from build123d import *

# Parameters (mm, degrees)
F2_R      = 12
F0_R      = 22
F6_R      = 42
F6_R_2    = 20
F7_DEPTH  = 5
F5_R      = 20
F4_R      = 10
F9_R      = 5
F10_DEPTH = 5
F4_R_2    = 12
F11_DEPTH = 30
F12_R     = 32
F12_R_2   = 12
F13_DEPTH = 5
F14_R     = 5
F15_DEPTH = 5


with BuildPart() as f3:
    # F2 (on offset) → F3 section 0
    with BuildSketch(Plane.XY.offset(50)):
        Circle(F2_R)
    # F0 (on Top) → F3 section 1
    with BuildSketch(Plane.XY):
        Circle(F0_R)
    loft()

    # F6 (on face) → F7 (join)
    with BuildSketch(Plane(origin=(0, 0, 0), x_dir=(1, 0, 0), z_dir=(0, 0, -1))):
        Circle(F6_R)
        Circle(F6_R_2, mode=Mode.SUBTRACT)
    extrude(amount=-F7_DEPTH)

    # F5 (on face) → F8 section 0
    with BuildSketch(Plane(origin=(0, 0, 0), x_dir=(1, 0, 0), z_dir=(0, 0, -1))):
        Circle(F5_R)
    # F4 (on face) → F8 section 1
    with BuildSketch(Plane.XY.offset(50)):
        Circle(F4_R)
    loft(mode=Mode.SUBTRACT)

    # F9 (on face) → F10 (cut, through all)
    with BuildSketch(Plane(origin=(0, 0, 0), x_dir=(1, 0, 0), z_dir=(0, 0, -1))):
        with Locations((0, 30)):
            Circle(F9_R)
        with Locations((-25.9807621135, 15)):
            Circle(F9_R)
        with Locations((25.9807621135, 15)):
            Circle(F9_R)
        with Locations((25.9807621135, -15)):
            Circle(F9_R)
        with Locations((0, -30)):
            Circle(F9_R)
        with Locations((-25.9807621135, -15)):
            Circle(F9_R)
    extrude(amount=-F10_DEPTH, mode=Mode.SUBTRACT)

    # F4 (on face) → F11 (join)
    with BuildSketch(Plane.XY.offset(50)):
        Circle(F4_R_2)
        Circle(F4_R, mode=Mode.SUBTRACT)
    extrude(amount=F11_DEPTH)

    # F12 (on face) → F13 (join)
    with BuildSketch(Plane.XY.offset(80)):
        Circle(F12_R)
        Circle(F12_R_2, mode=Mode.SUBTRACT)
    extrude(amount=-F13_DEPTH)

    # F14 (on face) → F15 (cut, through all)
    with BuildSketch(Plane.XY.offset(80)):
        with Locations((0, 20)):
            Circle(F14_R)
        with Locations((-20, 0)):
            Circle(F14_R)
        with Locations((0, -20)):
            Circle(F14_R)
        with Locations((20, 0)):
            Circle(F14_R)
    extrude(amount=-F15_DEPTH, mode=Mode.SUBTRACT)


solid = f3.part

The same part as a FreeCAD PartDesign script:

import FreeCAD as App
import Part
import Sketcher

V = App.Vector
Q = App.Units.Quantity

doc = App.newDocument("Part")
body = doc.addObject("PartDesign::Body", "Body")

# Sketch on XY plane
sketch1 = body.newObject("Sketcher::SketchObject", "Sketch")
sketch1.AttachmentSupport = (doc.getObject("XY_Plane"), [""])
sketch1.MapMode = "FlatFace"
sketch1.AttachmentOffset = App.Placement(V(0, 0, 50), App.Rotation())
sketch1.addGeometry(Part.Circle(V(0, 0, 0), V(0, 0, 1), 12), False)
sketch1.addConstraint(Sketcher.Constraint("Coincident", 0, 3, -1, 1))
sketch1.addConstraint(Sketcher.Constraint("Diameter", 0, Q("24 mm")))

# Sketch on XY plane
sketch2 = body.newObject("Sketcher::SketchObject", "Sketch001")
sketch2.AttachmentSupport = (doc.getObject("XY_Plane"), [""])
sketch2.MapMode = "FlatFace"
sketch2.addGeometry(Part.Circle(V(0, 0, 0), V(0, 0, 1), 22), False)
sketch2.addConstraint(Sketcher.Constraint("Coincident", 0, 3, -1, 1))
sketch2.addConstraint(Sketcher.Constraint("Diameter", 0, Q("44 mm")))

additiveloft = body.newObject("PartDesign::AdditiveLoft", "AdditiveLoft")
additiveloft.Profile = sketch1
additiveloft.Sections = [sketch2]

# Sketch on XY plane
sketch3 = body.newObject("Sketcher::SketchObject", "Sketch002")
sketch3.AttachmentSupport = (doc.getObject("XY_Plane"), [""])
sketch3.MapMode = "FlatFace"
sketch3.addGeometry(Part.Circle(V(0, 0, 0), V(0, 0, 1), 42), False)
sketch3.addGeometry(Part.Circle(V(0, 0, 0), V(0, 0, 1), 20), False)
sketch3.addConstraint(Sketcher.Constraint("Coincident", 0, 3, -1, 1))
sketch3.addConstraint(Sketcher.Constraint("Coincident", 1, 3, -1, 1))
sketch3.addConstraint(Sketcher.Constraint("Diameter", 0, Q("84 mm")))
sketch3.addConstraint(Sketcher.Constraint("Diameter", 1, Q("40 mm")))
pad1 = body.newObject("PartDesign::Pad", "Pad")
pad1.Profile = sketch3
pad1.Length = 5

# Sketch on XY plane
sketch4 = body.newObject("Sketcher::SketchObject", "Sketch003")
sketch4.AttachmentSupport = (doc.getObject("XY_Plane"), [""])
sketch4.MapMode = "FlatFace"
sketch4.addGeometry(Part.Circle(V(0, 0, 0), V(0, 0, 1), 20), False)
sketch4.addConstraint(Sketcher.Constraint("Coincident", 0, 3, -1, 1))
sketch4.addConstraint(Sketcher.Constraint("Diameter", 0, Q("40 mm")))

# Sketch on XY plane
sketch5 = body.newObject("Sketcher::SketchObject", "Sketch004")
sketch5.AttachmentSupport = (doc.getObject("XY_Plane"), [""])
sketch5.MapMode = "FlatFace"
sketch5.AttachmentOffset = App.Placement(V(0, 0, 50), App.Rotation())
sketch5.addGeometry(Part.Circle(V(0, 0, 0), V(0, 0, 1), 10), False)
sketch5.addConstraint(Sketcher.Constraint("Coincident", 0, 3, -1, 1))
sketch5.addConstraint(Sketcher.Constraint("Diameter", 0, Q("20 mm")))

subtractiveloft = body.newObject("PartDesign::SubtractiveLoft", "SubtractiveLoft")
subtractiveloft.Profile = sketch4
subtractiveloft.Sections = [sketch5]

# Sketch on XY plane
sketch6 = body.newObject("Sketcher::SketchObject", "Sketch005")
sketch6.AttachmentSupport = (doc.getObject("XY_Plane"), [""])
sketch6.MapMode = "FlatFace"
sketch6.addGeometry(Part.Circle(V(0, -30, 0), V(0, 0, 1), 5), False)
sketch6.addGeometry(Part.Circle(V(-26, -15, 0), V(0, 0, 1), 5), False)
sketch6.addGeometry(Part.Circle(V(26, -15, 0), V(0, 0, 1), 5), False)
sketch6.addGeometry(Part.Circle(V(26, 15, 0), V(0, 0, 1), 5), False)
sketch6.addGeometry(Part.Circle(V(0, 30, 0), V(0, 0, 1), 5), False)
sketch6.addGeometry(Part.Circle(V(-26, 15, 0), V(0, 0, 1), 5), False)
sketch6.addConstraint(Sketcher.Constraint("Equal", 0, 1))
sketch6.addConstraint(Sketcher.Constraint("Equal", 1, 2))
sketch6.addConstraint(Sketcher.Constraint("Equal", 2, 3))
sketch6.addConstraint(Sketcher.Constraint("Equal", 3, 4))
sketch6.addConstraint(Sketcher.Constraint("Equal", 4, 5))
sketch6.addConstraint(Sketcher.Constraint("Symmetric", 1, 3, 3, 3, -1, 1))
sketch6.addConstraint(Sketcher.Constraint("Symmetric", 0, 3, 4, 3, -1, 1))
sketch6.addConstraint(Sketcher.Constraint("Symmetric", 2, 3, 5, 3, -1, 1))
sketch6.addConstraint(Sketcher.Constraint("Symmetric", 1, 3, 2, 3, -2))
sketch6.addConstraint(Sketcher.Constraint("PointOnObject", 0, 3, -2))
sketch6.addConstraint(Sketcher.Constraint("Diameter", 0, Q("10 mm")))
sketch6.addConstraint(Sketcher.Constraint("DistanceY", 0, 3, -1, 1, Q("30 mm")))
sketch6.addConstraint(Sketcher.Constraint("DistanceY", 1, 3, -1, 1, Q("15 mm")))
sketch6.addConstraint(Sketcher.Constraint("DistanceX", 1, 3, -1, 1, Q("25.980762 mm")))
pocket1 = body.newObject("PartDesign::Pocket", "Pocket")
pocket1.Profile = sketch6
pocket1.Type = "ThroughAll"
pocket1.Reversed = True

# Sketch on XY plane
sketch7 = body.newObject("Sketcher::SketchObject", "Sketch006")
sketch7.AttachmentSupport = (doc.getObject("XY_Plane"), [""])
sketch7.MapMode = "FlatFace"
sketch7.AttachmentOffset = App.Placement(V(0, 0, 50), App.Rotation())
sketch7.addGeometry(Part.Circle(V(0, 0, 0), V(0, 0, 1), 12), False)
sketch7.addGeometry(Part.Circle(V(0, 0, 0), V(0, 0, 1), 10), False)
sketch7.addConstraint(Sketcher.Constraint("Coincident", 0, 3, -1, 1))
sketch7.addConstraint(Sketcher.Constraint("Coincident", 1, 3, -1, 1))
sketch7.addConstraint(Sketcher.Constraint("Diameter", 0, Q("24 mm")))
sketch7.addConstraint(Sketcher.Constraint("Diameter", 1, Q("20 mm")))
pad2 = body.newObject("PartDesign::Pad", "Pad001")
pad2.Profile = sketch7
pad2.Length = 30

# Sketch on XY plane
sketch8 = body.newObject("Sketcher::SketchObject", "Sketch007")
sketch8.AttachmentSupport = (doc.getObject("XY_Plane"), [""])
sketch8.MapMode = "FlatFace"
sketch8.AttachmentOffset = App.Placement(V(0, 0, 80), App.Rotation())
sketch8.addGeometry(Part.Circle(V(0, 0, 0), V(0, 0, 1), 32), False)
sketch8.addGeometry(Part.Circle(V(0, 0, 0), V(0, 0, 1), 12), False)
sketch8.addConstraint(Sketcher.Constraint("Coincident", 0, 3, -1, 1))
sketch8.addConstraint(Sketcher.Constraint("Coincident", 1, 3, -1, 1))
sketch8.addConstraint(Sketcher.Constraint("Diameter", 0, Q("64 mm")))
sketch8.addConstraint(Sketcher.Constraint("Diameter", 1, Q("24 mm")))
pad3 = body.newObject("PartDesign::Pad", "Pad002")
pad3.Profile = sketch8
pad3.Length = 5
pad3.Reversed = True

# Sketch on XY plane
sketch9 = body.newObject("Sketcher::SketchObject", "Sketch008")
sketch9.AttachmentSupport = (doc.getObject("XY_Plane"), [""])
sketch9.MapMode = "FlatFace"
sketch9.AttachmentOffset = App.Placement(V(0, 0, 80), App.Rotation())
sketch9.addGeometry(Part.Circle(V(0, 20, 0), V(0, 0, 1), 5), False)
sketch9.addGeometry(Part.Circle(V(-20, 0, 0), V(0, 0, 1), 5), False)
sketch9.addGeometry(Part.Circle(V(0, -20, 0), V(0, 0, 1), 5), False)
sketch9.addGeometry(Part.Circle(V(20, 0, 0), V(0, 0, 1), 5), False)
sketch9.addConstraint(Sketcher.Constraint("Equal", 0, 1))
sketch9.addConstraint(Sketcher.Constraint("Equal", 1, 2))
sketch9.addConstraint(Sketcher.Constraint("Equal", 2, 3))
sketch9.addConstraint(Sketcher.Constraint("Symmetric", 0, 3, 2, 3, -1, 1))
sketch9.addConstraint(Sketcher.Constraint("Symmetric", 1, 3, 3, 3, -1, 1))
sketch9.addConstraint(Sketcher.Constraint("PointOnObject", 0, 3, -2))
sketch9.addConstraint(Sketcher.Constraint("PointOnObject", 1, 3, -1))
sketch9.addConstraint(Sketcher.Constraint("Diameter", 0, Q("10 mm")))
sketch9.addConstraint(Sketcher.Constraint("DistanceY", -1, 1, 0, 3, Q("20 mm")))
sketch9.addConstraint(Sketcher.Constraint("DistanceX", 1, 3, -1, 1, Q("20 mm")))
pocket2 = body.newObject("PartDesign::Pocket", "Pocket001")
pocket2.Profile = sketch9
pocket2.Length = 5

doc.recompute()
